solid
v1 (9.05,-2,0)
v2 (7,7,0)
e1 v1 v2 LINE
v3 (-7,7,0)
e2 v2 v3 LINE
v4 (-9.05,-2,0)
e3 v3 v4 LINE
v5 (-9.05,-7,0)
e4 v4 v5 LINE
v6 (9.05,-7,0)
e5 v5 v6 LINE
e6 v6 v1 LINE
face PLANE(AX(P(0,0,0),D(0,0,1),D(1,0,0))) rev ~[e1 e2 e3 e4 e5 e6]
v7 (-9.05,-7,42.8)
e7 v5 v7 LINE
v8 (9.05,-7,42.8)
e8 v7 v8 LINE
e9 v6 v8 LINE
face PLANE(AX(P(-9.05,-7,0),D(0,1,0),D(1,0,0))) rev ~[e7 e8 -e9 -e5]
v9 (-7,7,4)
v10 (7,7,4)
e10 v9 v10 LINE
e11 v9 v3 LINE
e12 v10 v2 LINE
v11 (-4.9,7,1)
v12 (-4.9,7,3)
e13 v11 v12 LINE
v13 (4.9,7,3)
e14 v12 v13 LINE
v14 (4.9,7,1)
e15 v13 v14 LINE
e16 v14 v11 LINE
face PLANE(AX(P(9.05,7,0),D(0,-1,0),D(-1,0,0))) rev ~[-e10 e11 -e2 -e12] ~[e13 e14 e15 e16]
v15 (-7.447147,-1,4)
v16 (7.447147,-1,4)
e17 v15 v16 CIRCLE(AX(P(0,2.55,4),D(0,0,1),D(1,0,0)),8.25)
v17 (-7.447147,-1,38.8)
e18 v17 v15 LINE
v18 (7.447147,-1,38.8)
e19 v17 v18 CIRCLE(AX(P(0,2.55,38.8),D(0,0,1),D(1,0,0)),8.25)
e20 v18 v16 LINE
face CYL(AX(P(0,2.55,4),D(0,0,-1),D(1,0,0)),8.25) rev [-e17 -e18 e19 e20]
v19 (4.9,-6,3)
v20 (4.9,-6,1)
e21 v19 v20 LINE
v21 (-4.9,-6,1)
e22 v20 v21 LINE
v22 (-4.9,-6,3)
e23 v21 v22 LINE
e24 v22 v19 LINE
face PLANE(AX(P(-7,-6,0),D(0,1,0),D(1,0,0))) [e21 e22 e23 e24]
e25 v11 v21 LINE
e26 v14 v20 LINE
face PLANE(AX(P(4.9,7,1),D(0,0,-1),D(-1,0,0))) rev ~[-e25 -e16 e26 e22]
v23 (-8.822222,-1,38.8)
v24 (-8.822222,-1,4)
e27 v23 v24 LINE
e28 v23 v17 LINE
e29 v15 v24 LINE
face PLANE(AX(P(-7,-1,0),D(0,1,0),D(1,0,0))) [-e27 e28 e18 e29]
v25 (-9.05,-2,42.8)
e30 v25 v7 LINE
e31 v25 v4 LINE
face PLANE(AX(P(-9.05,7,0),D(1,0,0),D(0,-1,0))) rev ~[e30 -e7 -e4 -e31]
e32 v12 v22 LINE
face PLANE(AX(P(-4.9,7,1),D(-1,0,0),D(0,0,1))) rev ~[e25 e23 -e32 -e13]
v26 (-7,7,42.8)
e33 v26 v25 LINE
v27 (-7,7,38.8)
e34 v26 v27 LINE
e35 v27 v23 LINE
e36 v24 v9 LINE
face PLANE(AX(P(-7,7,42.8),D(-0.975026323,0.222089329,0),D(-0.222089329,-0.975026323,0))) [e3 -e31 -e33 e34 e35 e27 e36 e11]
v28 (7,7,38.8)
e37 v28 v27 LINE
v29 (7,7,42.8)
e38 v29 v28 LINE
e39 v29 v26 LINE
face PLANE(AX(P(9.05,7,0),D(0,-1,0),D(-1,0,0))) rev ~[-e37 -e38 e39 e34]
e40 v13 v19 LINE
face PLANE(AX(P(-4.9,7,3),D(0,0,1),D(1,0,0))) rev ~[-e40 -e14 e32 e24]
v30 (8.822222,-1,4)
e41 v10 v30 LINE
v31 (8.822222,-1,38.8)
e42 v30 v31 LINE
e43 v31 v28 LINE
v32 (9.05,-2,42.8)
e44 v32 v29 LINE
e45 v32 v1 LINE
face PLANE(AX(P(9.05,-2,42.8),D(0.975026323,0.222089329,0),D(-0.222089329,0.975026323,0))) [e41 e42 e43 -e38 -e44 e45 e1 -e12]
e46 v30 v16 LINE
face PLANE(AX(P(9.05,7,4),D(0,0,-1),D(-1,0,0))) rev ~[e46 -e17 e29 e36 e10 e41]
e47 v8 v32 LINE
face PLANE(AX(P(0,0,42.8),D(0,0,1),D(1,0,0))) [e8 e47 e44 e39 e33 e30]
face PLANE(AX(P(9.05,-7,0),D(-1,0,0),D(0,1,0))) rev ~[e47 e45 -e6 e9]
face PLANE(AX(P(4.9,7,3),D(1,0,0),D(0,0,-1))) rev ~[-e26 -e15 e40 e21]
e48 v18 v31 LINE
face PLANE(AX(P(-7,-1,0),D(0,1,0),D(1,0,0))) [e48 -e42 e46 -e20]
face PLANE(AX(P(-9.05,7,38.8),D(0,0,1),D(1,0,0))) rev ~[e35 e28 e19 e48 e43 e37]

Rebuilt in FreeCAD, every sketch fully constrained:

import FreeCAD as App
import Part
import Sketcher


def add_polygon(sketch, points):
    """Adds a closed chain of lines whose ends are joined by coincident constraints."""
    first, n = sketch.GeometryCount, len(points)
    for a, b in zip(points, points[1:] + points[:1]):
        sketch.addGeometry(Part.LineSegment(App.Vector(*a, 0), App.Vector(*b, 0)), False)
    for i in range(n):
        sketch.addConstraint(Sketcher.Constraint("Coincident", first + i, 2, first + (i + 1) % n, 1))

doc = App.newDocument("Part")
body = doc.addObject("PartDesign::Body", "Body")

# Sketch on XY plane
sketch1 = body.newObject("Sketcher::SketchObject", "Sketch")
sketch1.AttachmentSupport = (doc.getObject("XY_Plane"), [""])
sketch1.MapMode = "FlatFace"
add_polygon(sketch1, [(-9, 7), (-9, -7), (9, -7), (9, 7)])  # lines 0-3
sketch1.addConstraint([
    Sketcher.Constraint("Vertical", 0),
    Sketcher.Constraint("Horizontal", 1),
    Sketcher.Constraint("Vertical", 2),
    Sketcher.Constraint("Horizontal", 3),
    Sketcher.Constraint("Symmetric", 0, 2, 2, 2, -1, 1),
    Sketcher.Constraint("DistanceY", 0, 2, 0, 1, 14.0),
    Sketcher.Constraint("DistanceX", 1, 1, 1, 2, 18.1),
])
pad1 = body.newObject("PartDesign::Pad", "Pad")
pad1.Profile = sketch1
pad1.Length = 42.8

# Sketch on XY plane
sketch2 = body.newObject("Sketcher::SketchObject", "Sketch001")
sketch2.AttachmentSupport = (doc.getObject("XY_Plane"), [""])
sketch2.MapMode = "FlatFace"
sketch2.AttachmentOffset = App.Placement(App.Vector(0, 0, 42.8), App.Rotation())
add_polygon(sketch2, [(-7, 7), (-9.1, 7), (-9.1, -2)])  # lines 0-2
add_polygon(sketch2, [(9.1, 7), (7, 7), (9.1, -2)])  # lines 3-5
sketch2.addConstraint([
    Sketcher.Constraint("Horizontal", 0),
    Sketcher.Constraint("Vertical", 1),
    Sketcher.Constraint("Horizontal", 3),
    Sketcher.Constraint("Vertical", 5),
    Sketcher.Constraint("Symmetric", 2, 2, 3, 2, -2),
    Sketcher.Constraint("Symmetric", 1, 2, 4, 2, -2),
    Sketcher.Constraint("DistanceX", 2, 2, 3, 2, 14.0),
    Sketcher.Constraint("DistanceY", 1, 2, 1, 1, 9.0),
    Sketcher.Constraint("DistanceY", -1, 1, 0, 2, 7.0),
    Sketcher.Constraint("DistanceX", 0, 2, 0, 1, 2.05),
])
pocket1 = body.newObject("PartDesign::Pocket", "Pocket")
pocket1.Profile = sketch2
pocket1.Type = "ThroughAll"

# Sketch on XZ plane
sketch3 = body.newObject("Sketcher::SketchObject", "Sketch002")
sketch3.AttachmentSupport = (doc.getObject("XZ_Plane"), [""])
sketch3.MapMode = "FlatFace"
sketch3.AttachmentOffset = App.Placement(App.Vector(0, 0, -7), App.Rotation())
add_polygon(sketch3, [(9, 4), (-9, 4), (-9, 39), (9, 39)])  # lines 0-3
sketch3.addConstraint([
    Sketcher.Constraint("Horizontal", 0),
    Sketcher.Constraint("Vertical", 1),
    Sketcher.Constraint("Horizontal", 2),
    Sketcher.Constraint("Vertical", 3),
    Sketcher.Constraint("DistanceY", -1, 1, 0, 2, 4.0),
    Sketcher.Constraint("DistanceX", 0, 2, 0, 1, 18.1),
    Sketcher.Constraint("DistanceY", 1, 1, 1, 2, 34.8),
    Sketcher.Constraint("DistanceX", 0, 2, -1, 1, 9.05),
])
pocket2 = body.newObject("PartDesign::Pocket", "Pocket001")
pocket2.Profile = sketch3
pocket2.Length = 8
pocket2.Reversed = True

# Sketch on XY plane
sketch4 = body.newObject("Sketcher::SketchObject", "Sketch003")
sketch4.AttachmentSupport = (doc.getObject("XY_Plane"), [""])
sketch4.MapMode = "FlatFace"
sketch4.AttachmentOffset = App.Placement(App.Vector(0, 0, 4), App.Rotation())
sketch4.addGeometry(Part.Circle(App.Vector(0, 3, 0), App.Vector(0, 0, 1), 8), False)
sketch4.addConstraint([
    Sketcher.Constraint("PointOnObject", 0, 3, -2),
    Sketcher.Constraint("Diameter", 0, 16.5),
    Sketcher.Constraint("DistanceY", -1, 1, 0, 3, 2.55),
])
pocket3 = body.newObject("PartDesign::Pocket", "Pocket002")
pocket3.Profile = sketch4
pocket3.Length = 34.8
pocket3.Reversed = True

# Sketch on XZ plane
sketch5 = body.newObject("Sketcher::SketchObject", "Sketch004")
sketch5.AttachmentSupport = (doc.getObject("XZ_Plane"), [""])
sketch5.MapMode = "FlatFace"
sketch5.AttachmentOffset = App.Placement(App.Vector(0, 0, -7), App.Rotation())
add_polygon(sketch5, [(-4.9, 1), (-4.9, 3), (4.9, 3), (4.9, 1)])  # lines 0-3
sketch5.addConstraint([
    Sketcher.Constraint("Vertical", 0),
    Sketcher.Constraint("Horizontal", 1),
    Sketcher.Constraint("Vertical", 2),
    Sketcher.Constraint("Horizontal", 3),
    Sketcher.Constraint("DistanceY", 0, 1, 0, 2, 2.0),
    Sketcher.Constraint("DistanceX", 1, 1, 1, 2, 9.8),
    Sketcher.Constraint("DistanceY", -1, 1, 0, 2, 3.0),
    Sketcher.Constraint("DistanceX", 0, 2, -1, 1, 4.9),
])
pocket4 = body.newObject("PartDesign::Pocket", "Pocket003")
pocket4.Profile = sketch5
pocket4.Length = 13
pocket4.Reversed = True

doc.recompute()
